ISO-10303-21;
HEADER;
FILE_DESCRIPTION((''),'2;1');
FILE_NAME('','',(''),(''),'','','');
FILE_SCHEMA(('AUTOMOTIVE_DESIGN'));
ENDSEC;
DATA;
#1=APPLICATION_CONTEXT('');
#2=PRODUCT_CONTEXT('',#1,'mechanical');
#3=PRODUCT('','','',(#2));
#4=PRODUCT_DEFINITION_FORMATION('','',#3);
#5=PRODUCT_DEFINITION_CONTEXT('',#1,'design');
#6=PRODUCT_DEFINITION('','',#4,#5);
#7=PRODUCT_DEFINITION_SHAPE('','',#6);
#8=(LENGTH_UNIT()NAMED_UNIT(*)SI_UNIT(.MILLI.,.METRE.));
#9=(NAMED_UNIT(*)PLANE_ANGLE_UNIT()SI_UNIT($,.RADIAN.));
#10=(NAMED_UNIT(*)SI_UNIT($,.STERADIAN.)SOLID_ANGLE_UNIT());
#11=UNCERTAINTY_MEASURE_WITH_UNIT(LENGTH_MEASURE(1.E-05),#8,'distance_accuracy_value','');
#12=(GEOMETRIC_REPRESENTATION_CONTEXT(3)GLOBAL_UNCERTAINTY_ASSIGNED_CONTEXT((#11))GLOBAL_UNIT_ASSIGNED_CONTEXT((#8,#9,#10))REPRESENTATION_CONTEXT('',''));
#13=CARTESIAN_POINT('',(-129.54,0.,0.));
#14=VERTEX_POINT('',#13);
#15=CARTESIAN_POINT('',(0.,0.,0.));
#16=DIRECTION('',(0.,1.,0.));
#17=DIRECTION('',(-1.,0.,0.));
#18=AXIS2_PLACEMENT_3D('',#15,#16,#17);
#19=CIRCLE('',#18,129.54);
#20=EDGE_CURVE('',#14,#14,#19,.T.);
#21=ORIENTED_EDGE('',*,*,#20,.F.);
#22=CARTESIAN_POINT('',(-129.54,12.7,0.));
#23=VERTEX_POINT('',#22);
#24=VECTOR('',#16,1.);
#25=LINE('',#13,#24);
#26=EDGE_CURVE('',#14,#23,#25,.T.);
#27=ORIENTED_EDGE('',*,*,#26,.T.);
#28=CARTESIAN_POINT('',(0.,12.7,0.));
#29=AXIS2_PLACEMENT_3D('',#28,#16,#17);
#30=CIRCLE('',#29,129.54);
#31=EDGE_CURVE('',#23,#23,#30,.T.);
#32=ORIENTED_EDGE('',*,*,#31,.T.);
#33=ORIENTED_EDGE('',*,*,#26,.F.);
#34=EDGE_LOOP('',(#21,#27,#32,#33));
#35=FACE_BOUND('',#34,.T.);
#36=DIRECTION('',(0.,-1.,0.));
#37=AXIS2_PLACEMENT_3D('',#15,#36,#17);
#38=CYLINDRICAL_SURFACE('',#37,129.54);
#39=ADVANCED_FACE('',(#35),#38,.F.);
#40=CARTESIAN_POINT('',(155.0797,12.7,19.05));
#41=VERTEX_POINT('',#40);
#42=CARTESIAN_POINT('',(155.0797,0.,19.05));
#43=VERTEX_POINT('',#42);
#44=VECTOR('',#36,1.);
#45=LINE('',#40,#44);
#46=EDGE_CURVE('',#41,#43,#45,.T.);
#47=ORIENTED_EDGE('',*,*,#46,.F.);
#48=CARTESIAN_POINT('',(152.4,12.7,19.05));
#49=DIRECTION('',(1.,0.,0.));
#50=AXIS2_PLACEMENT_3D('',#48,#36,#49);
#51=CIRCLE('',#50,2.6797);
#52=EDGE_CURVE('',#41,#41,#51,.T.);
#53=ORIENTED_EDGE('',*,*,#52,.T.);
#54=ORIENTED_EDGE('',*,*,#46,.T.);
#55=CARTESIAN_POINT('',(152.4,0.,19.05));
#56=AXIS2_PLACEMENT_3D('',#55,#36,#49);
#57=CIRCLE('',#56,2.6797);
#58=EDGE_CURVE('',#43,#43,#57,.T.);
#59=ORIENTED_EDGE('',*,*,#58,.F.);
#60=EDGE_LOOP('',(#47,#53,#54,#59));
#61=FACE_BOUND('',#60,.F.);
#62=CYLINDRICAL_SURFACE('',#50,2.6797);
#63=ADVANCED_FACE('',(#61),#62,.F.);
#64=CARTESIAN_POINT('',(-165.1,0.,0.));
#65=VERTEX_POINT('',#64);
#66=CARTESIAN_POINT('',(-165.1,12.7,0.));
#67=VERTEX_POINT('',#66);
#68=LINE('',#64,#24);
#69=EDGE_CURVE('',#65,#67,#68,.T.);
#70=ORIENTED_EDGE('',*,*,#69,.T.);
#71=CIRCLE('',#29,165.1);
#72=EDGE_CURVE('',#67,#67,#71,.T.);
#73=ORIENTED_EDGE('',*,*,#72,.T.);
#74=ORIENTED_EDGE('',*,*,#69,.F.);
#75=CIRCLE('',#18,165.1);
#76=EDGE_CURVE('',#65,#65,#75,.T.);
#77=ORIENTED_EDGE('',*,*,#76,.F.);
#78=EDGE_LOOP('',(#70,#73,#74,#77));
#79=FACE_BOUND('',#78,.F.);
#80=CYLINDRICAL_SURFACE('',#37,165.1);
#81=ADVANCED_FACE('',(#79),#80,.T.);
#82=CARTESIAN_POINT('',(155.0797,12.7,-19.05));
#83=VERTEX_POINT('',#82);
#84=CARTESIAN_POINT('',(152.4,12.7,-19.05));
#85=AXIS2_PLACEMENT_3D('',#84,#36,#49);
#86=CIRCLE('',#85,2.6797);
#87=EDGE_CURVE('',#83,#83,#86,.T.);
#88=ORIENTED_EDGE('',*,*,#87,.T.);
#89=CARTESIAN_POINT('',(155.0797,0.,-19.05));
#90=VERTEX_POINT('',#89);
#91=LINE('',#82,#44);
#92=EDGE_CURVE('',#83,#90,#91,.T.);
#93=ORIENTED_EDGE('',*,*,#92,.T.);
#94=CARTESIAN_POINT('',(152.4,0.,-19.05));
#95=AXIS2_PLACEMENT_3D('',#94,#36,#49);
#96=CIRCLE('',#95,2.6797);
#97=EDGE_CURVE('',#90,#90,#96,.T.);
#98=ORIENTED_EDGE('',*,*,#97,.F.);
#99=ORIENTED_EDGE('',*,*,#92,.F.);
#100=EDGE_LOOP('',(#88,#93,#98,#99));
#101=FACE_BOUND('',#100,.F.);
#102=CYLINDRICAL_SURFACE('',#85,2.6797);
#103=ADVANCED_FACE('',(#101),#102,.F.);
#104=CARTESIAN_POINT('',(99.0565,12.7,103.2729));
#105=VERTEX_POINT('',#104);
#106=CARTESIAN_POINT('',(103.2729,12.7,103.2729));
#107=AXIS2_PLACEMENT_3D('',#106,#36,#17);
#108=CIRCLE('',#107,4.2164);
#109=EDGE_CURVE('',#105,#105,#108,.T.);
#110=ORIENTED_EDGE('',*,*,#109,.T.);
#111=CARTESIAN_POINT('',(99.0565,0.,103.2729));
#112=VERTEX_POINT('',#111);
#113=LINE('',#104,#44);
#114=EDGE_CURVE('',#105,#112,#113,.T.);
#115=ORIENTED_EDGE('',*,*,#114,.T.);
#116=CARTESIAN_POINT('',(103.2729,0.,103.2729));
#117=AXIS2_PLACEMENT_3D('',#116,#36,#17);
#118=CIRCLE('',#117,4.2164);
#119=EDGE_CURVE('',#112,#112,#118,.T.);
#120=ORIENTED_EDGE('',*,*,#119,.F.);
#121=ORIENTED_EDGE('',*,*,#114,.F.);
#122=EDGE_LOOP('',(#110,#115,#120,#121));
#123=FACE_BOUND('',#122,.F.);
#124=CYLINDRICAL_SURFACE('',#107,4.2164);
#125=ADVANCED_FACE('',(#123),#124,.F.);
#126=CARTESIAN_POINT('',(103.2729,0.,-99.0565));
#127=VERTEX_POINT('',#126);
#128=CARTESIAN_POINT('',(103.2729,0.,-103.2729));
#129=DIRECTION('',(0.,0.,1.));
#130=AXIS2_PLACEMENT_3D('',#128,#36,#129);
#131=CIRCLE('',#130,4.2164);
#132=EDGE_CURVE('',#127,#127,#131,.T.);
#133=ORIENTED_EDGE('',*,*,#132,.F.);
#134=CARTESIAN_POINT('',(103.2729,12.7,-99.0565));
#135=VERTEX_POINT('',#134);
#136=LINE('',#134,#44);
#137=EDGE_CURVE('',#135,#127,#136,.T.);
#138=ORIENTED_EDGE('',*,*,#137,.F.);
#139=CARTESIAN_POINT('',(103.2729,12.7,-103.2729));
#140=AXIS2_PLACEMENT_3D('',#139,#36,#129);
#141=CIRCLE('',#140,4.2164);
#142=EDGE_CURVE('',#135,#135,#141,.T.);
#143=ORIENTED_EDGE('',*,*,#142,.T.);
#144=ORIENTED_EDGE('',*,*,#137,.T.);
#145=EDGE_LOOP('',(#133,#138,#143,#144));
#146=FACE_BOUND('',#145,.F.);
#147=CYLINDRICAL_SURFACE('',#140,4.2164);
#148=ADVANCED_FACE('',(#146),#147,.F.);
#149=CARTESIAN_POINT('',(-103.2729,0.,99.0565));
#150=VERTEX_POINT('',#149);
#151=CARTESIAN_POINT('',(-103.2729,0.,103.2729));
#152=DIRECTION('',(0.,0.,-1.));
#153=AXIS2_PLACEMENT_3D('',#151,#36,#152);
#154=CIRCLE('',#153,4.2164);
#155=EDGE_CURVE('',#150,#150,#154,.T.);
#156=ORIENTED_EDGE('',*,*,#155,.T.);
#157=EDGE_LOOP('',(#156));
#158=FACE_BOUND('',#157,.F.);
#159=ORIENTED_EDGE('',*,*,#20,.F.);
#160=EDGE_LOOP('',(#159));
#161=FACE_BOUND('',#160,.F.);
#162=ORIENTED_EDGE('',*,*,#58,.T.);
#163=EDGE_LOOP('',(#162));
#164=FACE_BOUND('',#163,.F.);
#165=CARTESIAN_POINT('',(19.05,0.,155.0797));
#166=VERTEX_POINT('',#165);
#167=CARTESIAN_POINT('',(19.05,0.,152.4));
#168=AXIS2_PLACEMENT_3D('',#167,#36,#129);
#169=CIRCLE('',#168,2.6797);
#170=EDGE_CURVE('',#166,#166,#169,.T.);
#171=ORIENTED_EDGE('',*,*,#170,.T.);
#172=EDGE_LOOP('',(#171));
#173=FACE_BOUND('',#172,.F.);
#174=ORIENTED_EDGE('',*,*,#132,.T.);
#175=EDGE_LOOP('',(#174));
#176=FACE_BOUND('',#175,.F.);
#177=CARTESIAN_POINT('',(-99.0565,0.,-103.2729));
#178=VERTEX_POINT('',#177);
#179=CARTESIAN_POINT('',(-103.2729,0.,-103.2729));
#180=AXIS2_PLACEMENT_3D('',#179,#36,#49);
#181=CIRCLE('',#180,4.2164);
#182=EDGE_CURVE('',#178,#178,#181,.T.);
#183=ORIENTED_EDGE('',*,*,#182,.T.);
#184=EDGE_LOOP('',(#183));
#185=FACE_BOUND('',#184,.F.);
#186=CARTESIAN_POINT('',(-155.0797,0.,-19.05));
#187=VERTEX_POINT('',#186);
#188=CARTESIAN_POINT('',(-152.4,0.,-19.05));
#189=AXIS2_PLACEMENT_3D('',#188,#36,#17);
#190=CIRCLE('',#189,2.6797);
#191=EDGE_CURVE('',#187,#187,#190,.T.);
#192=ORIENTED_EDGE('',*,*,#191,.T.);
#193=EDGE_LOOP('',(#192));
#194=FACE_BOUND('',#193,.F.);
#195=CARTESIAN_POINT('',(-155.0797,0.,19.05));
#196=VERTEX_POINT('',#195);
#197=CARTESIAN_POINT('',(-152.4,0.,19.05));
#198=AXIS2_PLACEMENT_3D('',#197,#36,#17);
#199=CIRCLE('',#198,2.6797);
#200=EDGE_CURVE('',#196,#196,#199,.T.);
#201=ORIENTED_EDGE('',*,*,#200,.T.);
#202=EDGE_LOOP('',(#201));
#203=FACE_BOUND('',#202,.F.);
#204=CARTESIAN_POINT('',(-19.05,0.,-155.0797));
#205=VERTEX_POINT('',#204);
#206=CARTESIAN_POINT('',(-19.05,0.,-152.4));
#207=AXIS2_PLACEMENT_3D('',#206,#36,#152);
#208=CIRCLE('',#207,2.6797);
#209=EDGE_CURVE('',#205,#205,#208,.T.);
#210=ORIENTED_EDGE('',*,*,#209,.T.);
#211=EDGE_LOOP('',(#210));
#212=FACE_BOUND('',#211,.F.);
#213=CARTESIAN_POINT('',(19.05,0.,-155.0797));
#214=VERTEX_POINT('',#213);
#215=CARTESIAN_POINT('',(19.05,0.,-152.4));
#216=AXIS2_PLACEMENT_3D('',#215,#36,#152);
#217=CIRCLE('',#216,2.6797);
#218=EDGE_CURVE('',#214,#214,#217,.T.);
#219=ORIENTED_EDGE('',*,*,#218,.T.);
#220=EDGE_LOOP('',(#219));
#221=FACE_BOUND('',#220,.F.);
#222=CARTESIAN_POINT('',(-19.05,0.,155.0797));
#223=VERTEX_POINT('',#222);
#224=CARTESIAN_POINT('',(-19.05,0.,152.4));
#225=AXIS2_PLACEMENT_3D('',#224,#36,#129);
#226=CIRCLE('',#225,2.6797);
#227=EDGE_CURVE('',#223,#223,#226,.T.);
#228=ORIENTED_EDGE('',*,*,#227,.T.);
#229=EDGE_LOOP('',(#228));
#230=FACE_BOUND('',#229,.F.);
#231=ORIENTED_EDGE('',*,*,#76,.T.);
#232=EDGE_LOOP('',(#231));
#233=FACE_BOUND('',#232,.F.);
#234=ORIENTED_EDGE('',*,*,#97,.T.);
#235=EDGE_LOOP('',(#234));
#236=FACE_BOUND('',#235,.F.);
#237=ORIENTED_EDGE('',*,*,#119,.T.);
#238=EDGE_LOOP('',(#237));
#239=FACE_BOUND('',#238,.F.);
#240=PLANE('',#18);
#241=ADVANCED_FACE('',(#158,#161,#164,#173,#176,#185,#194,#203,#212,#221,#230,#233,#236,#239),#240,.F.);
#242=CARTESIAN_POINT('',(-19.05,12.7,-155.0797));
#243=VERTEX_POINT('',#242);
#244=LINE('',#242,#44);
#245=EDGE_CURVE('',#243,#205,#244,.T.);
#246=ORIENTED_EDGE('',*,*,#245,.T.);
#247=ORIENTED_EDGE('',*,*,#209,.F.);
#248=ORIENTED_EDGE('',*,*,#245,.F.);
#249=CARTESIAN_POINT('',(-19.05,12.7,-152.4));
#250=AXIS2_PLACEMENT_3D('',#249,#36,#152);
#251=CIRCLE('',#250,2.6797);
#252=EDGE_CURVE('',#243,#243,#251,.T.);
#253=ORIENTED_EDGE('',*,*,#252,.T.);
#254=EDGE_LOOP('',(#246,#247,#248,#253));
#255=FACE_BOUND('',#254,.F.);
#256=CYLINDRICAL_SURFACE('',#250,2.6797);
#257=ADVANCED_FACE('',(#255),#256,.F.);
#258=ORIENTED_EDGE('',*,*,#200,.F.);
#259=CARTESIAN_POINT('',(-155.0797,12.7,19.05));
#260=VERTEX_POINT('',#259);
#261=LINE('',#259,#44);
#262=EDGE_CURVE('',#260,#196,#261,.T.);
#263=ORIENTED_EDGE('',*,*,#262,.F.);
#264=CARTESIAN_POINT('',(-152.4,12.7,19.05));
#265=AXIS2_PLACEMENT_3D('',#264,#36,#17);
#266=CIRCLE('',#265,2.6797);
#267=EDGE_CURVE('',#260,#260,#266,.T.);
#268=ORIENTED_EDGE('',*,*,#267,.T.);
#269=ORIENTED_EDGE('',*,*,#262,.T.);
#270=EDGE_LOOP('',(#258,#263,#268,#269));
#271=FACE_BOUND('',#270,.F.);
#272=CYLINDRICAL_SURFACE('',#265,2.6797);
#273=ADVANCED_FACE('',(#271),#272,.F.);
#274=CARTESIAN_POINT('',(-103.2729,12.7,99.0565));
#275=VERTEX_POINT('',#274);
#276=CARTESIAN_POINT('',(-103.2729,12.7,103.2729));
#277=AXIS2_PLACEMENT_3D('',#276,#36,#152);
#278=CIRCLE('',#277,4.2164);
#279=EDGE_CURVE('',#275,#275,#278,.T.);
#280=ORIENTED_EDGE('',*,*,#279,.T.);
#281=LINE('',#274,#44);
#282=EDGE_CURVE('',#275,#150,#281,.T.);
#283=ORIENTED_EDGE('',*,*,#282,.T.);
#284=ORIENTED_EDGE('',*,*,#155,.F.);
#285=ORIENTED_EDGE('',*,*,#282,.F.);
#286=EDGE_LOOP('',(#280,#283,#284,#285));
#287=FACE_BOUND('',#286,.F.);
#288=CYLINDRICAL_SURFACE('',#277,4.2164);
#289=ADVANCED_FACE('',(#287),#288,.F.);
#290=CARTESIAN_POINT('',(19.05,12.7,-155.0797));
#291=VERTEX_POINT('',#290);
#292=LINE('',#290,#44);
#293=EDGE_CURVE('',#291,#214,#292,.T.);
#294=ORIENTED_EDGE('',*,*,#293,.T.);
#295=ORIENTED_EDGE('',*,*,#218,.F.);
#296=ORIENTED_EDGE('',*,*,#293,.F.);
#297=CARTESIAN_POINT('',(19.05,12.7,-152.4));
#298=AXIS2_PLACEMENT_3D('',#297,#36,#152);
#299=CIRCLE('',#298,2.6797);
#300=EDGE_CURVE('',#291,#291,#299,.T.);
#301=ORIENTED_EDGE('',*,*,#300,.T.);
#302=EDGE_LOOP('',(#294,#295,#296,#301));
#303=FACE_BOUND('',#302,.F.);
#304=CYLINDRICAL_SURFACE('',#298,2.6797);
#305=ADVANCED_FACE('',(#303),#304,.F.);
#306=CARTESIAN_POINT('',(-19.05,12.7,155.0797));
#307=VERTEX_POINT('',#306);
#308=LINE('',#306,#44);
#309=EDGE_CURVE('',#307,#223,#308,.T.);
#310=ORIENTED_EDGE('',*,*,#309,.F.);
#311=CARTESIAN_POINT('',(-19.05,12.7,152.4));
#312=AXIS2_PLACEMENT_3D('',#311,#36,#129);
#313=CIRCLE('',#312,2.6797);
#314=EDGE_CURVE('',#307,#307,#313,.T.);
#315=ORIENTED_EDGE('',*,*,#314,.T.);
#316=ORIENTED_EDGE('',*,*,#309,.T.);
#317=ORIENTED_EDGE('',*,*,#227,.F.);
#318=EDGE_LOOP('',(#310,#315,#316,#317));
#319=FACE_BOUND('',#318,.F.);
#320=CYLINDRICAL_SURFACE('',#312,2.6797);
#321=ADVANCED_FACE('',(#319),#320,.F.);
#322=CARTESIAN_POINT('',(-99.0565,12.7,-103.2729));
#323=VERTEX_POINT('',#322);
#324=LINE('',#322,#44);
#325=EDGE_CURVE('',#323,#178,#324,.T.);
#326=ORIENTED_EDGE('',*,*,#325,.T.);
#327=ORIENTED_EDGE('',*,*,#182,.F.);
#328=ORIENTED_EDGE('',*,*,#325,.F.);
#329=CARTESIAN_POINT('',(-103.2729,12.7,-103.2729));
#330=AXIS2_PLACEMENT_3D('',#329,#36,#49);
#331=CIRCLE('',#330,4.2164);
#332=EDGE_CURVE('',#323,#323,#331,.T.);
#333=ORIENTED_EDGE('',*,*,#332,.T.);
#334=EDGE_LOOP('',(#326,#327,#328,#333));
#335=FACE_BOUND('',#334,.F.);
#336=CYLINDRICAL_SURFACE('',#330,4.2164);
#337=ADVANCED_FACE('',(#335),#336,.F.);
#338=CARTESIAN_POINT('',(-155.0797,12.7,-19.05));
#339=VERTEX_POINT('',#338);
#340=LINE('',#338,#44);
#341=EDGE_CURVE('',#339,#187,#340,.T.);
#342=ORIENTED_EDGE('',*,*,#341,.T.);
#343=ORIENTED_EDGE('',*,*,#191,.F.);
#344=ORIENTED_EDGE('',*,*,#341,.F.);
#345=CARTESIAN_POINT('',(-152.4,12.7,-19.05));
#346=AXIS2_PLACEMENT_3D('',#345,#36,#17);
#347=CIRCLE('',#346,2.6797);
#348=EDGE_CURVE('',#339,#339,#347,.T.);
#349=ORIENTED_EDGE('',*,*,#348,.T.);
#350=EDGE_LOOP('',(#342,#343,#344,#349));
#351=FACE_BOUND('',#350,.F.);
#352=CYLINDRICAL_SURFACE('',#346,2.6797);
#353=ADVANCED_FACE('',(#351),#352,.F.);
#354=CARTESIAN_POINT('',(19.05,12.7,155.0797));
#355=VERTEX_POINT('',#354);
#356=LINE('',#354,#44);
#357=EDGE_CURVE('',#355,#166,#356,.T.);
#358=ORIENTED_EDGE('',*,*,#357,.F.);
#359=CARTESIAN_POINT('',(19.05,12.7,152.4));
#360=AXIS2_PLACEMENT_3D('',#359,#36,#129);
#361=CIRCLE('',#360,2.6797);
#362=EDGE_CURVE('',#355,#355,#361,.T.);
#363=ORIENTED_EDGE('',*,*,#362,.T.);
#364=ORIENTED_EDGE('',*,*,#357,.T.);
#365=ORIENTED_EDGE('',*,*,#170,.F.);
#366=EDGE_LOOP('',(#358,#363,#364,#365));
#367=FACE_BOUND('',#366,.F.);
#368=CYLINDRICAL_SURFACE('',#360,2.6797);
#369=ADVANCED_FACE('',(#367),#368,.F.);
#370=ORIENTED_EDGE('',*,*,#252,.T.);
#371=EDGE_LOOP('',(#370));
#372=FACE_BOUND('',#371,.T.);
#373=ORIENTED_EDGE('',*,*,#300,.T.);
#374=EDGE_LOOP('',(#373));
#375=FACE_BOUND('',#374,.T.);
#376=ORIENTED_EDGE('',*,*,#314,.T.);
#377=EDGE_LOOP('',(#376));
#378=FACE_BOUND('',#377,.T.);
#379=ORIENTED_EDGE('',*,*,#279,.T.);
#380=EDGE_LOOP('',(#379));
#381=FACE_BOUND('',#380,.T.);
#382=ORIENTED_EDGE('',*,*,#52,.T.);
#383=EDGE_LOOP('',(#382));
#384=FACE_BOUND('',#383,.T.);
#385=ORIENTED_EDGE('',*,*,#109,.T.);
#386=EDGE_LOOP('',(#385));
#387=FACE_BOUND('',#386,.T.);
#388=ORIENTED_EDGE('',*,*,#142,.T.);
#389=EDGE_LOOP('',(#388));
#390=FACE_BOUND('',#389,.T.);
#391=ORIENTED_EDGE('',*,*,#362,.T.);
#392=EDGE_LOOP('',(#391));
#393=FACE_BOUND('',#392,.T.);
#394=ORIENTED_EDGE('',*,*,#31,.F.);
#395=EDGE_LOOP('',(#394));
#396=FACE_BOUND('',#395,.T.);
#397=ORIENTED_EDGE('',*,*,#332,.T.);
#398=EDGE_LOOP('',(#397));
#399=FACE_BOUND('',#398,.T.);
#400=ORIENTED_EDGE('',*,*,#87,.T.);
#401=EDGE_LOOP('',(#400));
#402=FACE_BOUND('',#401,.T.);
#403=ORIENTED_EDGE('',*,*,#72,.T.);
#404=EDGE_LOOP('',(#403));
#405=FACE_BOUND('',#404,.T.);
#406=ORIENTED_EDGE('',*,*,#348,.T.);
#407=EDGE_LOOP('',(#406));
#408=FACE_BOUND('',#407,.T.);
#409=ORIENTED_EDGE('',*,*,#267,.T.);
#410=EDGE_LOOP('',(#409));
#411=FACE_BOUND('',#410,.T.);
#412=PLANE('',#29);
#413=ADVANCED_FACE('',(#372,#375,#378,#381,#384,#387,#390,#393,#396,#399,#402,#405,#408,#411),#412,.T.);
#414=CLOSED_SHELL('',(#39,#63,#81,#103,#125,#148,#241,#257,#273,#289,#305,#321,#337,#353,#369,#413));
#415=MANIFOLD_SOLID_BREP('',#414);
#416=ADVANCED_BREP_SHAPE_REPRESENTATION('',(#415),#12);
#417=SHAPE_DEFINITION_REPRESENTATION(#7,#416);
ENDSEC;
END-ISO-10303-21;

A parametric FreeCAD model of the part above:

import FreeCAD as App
import Part
import Sketcher

V = App.Vector
Q = App.Units.Quantity

doc = App.newDocument("Part")
body = doc.addObject("PartDesign::Body", "Body")

sketch1 = body.newObject("Sketcher::SketchObject", "Sketch")
sketch1.AttachmentSupport = (doc.getObject("XZ_Plane"), [""])
sketch1.MapMode = "FlatFace"
sketch1.addGeometry([
    Part.Circle(V(0, 0, 0), V(0, 0, 1), 165),
    Part.Circle(V(0, 0, 0), V(0, 0, 1), 130),
], False)
sketch1.addConstraint([
    Sketcher.Constraint("Coincident", 0, 3, -1, 1),
    Sketcher.Constraint("Coincident", 1, 3, -1, 1),
    Sketcher.Constraint("Diameter", 0, Q("13 in")),
    Sketcher.Constraint("Diameter", 1, Q("10.2 in")),
])
pad1 = body.newObject("PartDesign::Pad", "Pad")
pad1.Profile = sketch1
pad1.Length = Q("0.5 in")
pad1.Reversed = True

sketch2 = body.newObject("Sketcher::SketchObject", "Sketch001")
sketch2.AttachmentSupport = (doc.getObject("XZ_Plane"), [""])
sketch2.MapMode = "FlatFace"
sketch2.AttachmentOffset = App.Placement(V(0, 0, -0.5 * 25.4), App.Rotation())
sketch2.addGeometry([
    Part.Circle(V(19.1, 152.4, 0), V(0, 0, 1), 2.7),
    Part.Circle(V(-19.1, 152.4, 0), V(0, 0, 1), 2.7),
], False)
sketch2.addConstraint([
    Sketcher.Constraint("Equal", 0, 1),
    Sketcher.Constraint("Symmetric", 0, 3, 1, 3, -2),
    Sketcher.Constraint("Diameter", 0, Q("0.211 in")),
    Sketcher.Constraint("DistanceY", -1, 1, 0, 3, Q("6 in")),
    Sketcher.Constraint("DistanceX", 1, 3, 0, 3, Q("1.5 in")),
])
doc.recompute()
hole = body.newObject("PartDesign::Hole", "Hole")
hole.Profile = sketch2
hole.ThreadType = "None"
hole.Diameter = Q("0.211 in")
hole.DepthType = "ThroughAll"
hole.Reversed = True
doc.recompute()

polarpattern = body.newObject("PartDesign::PolarPattern", "PolarPattern")
polarpattern.Originals = [hole]
polarpattern.Axis = (doc.getObject("Y_Axis"), [""])
polarpattern.Angle = 360
polarpattern.Occurrences = 4
body.Tip = polarpattern

sketch3 = body.newObject("Sketcher::SketchObject", "Sketch002")
sketch3.AttachmentSupport = (doc.getObject("XZ_Plane"), [""])
sketch3.MapMode = "FlatFace"
sketch3.AttachmentOffset = App.Placement(V(0, 0, -0.5 * 25.4), App.Rotation())
sketch3.addGeometry(Part.Circle(V(103.3, -103.3, 0), V(0, 0, 1), 4.2), False)
sketch3.addConstraint([
    Sketcher.Constraint("Diameter", 0, Q("0.332 in")),
    Sketcher.Constraint("DistanceX", -1, 1, 0, 3, 103.273),
    Sketcher.Constraint("DistanceY", 0, 3, -1, 1, 103.273),
])
doc.recompute()
hole2 = body.newObject("PartDesign::Hole", "Hole001")
hole2.Profile = sketch3
hole2.ThreadType = "None"
hole2.Diameter = Q("0.332 in")
hole2.DepthType = "ThroughAll"
hole2.Reversed = True
doc.recompute()

polarpattern2 = body.newObject("PartDesign::PolarPattern", "PolarPattern001")
polarpattern2.Originals = [hole2]
polarpattern2.Axis = (doc.getObject("Y_Axis"), [""])
polarpattern2.Angle = 360
polarpattern2.Occurrences = 4
body.Tip = polarpattern2

doc.recompute()
